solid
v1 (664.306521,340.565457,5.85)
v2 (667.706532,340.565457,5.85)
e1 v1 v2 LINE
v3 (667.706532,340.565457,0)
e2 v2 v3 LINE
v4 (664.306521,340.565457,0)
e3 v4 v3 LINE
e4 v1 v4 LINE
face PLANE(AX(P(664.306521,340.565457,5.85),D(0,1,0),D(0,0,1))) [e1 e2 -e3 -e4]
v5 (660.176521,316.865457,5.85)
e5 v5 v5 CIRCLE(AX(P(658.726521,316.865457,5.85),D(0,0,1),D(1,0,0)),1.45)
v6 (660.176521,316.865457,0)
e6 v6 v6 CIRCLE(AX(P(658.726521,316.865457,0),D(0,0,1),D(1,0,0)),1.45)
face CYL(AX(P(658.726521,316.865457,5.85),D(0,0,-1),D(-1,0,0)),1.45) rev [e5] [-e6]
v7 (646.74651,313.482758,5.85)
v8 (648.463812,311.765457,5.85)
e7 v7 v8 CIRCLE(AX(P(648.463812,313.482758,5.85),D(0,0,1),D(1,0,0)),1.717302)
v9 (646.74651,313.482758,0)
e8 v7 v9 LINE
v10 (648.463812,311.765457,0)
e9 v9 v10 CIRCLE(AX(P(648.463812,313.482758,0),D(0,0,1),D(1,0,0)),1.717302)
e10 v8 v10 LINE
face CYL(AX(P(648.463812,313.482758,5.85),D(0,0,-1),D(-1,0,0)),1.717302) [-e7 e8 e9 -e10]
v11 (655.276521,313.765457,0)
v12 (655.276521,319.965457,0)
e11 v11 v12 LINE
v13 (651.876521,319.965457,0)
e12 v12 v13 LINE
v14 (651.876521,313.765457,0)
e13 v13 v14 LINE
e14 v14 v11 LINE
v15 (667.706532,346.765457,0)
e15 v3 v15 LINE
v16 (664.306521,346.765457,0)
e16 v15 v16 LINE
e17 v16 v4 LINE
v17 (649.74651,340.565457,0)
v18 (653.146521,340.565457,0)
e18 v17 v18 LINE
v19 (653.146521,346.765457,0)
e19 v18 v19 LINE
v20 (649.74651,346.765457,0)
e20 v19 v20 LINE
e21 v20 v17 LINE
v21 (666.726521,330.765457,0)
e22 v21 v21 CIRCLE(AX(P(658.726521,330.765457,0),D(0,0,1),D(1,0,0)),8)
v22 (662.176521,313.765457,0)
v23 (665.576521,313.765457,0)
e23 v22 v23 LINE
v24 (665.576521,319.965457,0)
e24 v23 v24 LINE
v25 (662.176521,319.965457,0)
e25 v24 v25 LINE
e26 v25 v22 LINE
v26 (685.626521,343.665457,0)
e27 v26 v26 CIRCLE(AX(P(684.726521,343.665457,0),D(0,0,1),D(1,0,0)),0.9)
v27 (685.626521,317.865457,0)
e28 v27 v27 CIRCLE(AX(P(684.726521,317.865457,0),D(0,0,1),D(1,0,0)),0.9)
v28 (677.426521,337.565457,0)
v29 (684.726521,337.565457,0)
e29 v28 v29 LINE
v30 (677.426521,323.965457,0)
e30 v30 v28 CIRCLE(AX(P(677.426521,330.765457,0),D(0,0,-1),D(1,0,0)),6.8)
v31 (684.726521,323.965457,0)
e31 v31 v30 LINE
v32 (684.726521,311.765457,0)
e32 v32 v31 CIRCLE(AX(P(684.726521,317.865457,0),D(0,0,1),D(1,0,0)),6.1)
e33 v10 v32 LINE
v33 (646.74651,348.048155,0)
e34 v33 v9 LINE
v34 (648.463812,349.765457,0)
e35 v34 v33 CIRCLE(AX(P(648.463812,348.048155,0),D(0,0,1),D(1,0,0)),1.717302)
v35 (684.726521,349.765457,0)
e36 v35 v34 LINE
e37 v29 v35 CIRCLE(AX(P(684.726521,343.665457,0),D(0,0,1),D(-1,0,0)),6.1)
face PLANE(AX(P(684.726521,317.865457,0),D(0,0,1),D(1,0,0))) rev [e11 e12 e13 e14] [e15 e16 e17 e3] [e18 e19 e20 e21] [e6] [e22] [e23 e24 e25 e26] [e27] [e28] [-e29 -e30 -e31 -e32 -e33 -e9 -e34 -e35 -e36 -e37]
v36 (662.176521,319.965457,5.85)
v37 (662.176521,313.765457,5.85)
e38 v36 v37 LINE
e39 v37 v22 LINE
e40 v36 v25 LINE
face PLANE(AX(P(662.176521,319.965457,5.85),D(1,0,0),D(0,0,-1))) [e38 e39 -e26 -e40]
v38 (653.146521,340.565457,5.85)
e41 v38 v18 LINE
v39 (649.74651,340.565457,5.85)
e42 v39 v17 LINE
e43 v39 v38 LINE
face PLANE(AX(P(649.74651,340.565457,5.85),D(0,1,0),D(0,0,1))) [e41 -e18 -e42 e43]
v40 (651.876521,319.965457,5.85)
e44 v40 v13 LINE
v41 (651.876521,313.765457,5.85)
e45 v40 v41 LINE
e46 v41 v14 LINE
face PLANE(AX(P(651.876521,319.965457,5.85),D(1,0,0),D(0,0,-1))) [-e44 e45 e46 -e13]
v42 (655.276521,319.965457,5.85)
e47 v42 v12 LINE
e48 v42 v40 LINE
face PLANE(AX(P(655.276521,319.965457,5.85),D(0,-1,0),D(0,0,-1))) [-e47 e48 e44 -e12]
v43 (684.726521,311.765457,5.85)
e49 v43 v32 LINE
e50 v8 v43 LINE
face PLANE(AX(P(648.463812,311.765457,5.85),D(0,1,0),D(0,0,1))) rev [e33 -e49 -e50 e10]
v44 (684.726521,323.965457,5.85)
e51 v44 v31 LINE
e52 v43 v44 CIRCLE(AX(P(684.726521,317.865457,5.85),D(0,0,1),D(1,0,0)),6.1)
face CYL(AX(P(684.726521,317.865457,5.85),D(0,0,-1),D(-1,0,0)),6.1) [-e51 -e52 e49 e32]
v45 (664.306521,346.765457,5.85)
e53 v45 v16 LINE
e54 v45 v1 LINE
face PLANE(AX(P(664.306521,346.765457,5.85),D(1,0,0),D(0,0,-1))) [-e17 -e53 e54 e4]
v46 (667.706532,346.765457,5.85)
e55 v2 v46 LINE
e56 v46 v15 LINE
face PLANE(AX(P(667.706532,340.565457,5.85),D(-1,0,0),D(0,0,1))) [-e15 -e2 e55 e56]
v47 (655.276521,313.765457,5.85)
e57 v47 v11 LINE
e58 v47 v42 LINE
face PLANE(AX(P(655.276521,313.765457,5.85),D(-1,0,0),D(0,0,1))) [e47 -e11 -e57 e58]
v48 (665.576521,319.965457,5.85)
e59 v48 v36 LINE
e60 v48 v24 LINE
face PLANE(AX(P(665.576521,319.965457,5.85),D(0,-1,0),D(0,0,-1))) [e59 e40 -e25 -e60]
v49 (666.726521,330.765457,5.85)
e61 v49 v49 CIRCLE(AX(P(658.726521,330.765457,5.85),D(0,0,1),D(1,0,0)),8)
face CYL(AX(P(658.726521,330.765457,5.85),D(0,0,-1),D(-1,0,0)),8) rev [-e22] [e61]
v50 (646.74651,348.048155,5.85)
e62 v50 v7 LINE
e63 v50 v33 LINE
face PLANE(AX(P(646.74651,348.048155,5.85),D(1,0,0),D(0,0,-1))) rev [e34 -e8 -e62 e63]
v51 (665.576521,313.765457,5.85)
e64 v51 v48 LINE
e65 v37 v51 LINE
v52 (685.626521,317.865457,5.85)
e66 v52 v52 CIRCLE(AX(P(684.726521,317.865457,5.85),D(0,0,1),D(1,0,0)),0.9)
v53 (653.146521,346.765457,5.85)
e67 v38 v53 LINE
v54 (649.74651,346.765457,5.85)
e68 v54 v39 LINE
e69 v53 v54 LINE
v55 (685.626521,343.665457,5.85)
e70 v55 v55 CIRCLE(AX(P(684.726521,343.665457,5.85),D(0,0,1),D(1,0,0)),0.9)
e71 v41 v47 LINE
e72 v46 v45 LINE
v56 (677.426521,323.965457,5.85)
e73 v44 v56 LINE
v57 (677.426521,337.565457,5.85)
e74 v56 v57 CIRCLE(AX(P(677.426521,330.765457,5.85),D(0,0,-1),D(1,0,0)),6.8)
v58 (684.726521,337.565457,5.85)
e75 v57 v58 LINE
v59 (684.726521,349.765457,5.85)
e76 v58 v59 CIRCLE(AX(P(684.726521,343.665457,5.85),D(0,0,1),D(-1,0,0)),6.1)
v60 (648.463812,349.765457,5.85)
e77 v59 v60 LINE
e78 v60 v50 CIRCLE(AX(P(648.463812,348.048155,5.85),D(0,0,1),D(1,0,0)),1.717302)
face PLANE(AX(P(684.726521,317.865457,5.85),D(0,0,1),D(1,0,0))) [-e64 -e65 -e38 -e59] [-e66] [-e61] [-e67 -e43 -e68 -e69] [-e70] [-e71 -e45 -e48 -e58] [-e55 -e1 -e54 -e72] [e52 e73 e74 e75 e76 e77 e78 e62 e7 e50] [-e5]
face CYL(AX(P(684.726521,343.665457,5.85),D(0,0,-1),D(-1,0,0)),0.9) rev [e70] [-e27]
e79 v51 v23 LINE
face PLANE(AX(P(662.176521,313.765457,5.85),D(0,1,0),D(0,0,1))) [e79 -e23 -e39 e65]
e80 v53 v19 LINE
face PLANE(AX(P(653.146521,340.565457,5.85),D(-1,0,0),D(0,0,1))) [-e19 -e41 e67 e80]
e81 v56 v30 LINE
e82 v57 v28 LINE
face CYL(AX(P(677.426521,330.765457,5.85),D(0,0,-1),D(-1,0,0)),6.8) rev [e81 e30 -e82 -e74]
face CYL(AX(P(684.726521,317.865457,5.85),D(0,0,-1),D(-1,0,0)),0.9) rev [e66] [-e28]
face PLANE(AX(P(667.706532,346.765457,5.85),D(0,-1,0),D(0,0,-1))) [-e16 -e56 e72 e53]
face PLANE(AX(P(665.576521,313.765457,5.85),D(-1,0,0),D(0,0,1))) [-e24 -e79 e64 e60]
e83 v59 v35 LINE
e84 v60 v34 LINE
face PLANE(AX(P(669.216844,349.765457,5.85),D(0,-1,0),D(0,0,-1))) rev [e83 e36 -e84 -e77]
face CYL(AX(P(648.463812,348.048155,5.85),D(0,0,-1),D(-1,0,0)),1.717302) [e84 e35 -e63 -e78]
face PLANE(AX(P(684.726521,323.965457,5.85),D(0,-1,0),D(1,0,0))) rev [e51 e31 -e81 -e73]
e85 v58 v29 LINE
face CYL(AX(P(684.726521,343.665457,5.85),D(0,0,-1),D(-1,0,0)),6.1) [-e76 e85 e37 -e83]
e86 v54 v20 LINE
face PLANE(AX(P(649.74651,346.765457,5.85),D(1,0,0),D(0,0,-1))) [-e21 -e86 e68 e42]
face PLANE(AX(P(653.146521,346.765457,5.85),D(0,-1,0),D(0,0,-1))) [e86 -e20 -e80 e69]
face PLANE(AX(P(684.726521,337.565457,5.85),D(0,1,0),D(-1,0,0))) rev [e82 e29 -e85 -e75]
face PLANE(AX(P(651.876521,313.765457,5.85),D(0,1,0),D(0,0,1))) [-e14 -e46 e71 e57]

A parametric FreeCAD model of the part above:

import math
import FreeCAD as App
import Part
import Sketcher

V = App.Vector
Q = App.Units.Quantity

doc = App.newDocument("Part")
body = doc.addObject("PartDesign::Body", "Body")

# Sketch on XY plane
sketch1 = body.newObject("Sketcher::SketchObject", "Sketch")
sketch1.AttachmentSupport = (doc.getObject("XY_Plane"), [""])
sketch1.MapMode = "FlatFace"
sketch1.addGeometry([
    Part.ArcOfCircle(Part.Circle(V(648.463812, 348.048155, 0), V(0, 0, 1), 1.717302), math.radians(90), math.radians(180)),  # 0
    Part.LineSegment(V(646.74651, 348.048155, 0), V(646.74651, 313.482758, 0)),  # 1
    Part.ArcOfCircle(Part.Circle(V(648.463812, 313.482758, 0), V(0, 0, 1), 1.717302), math.radians(-180), math.radians(-90)),  # 2
    Part.LineSegment(V(648.463812, 311.765457, 0), V(684.726521, 311.765457, 0)),  # 3
    Part.ArcOfCircle(Part.Circle(V(684.726521, 317.865457, 0), V(0, 0, 1), 6.1), math.radians(-90), math.radians(90)),  # 4
    Part.LineSegment(V(684.726521, 323.965457, 0), V(677.426521, 323.965457, 0)),  # 5
    Part.ArcOfCircle(Part.Circle(V(677.426521, 330.765457, 0), V(0, 0, 1), 6.8), math.radians(90), math.radians(270)),  # 6
    Part.LineSegment(V(677.426521, 337.565457, 0), V(684.726521, 337.565457, 0)),  # 7
    Part.ArcOfCircle(Part.Circle(V(684.726521, 343.665457, 0), V(0, 0, 1), 6.1), math.radians(-90), math.radians(90)),  # 8
    Part.LineSegment(V(684.726521, 349.765457, 0), V(648.463812, 349.765457, 0)),  # 9
    Part.LineSegment(V(655.276521, 313.765457, 0), V(651.876521, 313.765457, 0)),  # 10
    Part.LineSegment(V(651.876521, 313.765457, 0), V(651.876521, 319.965457, 0)),  # 11
    Part.LineSegment(V(651.876521, 319.965457, 0), V(655.276521, 319.965457, 0)),  # 12
    Part.LineSegment(V(655.276521, 319.965457, 0), V(655.276521, 313.765457, 0)),  # 13
    Part.Circle(V(658.726521, 316.865457, 0), V(0, 0, 1), 1.45),  # 14
    Part.LineSegment(V(665.576521, 313.765457, 0), V(662.176521, 313.765457, 0)),  # 15
    Part.LineSegment(V(662.176521, 313.765457, 0), V(662.176521, 319.965457, 0)),  # 16
    Part.LineSegment(V(662.176521, 319.965457, 0), V(665.576521, 319.965457, 0)),  # 17
    Part.LineSegment(V(665.576521, 319.965457, 0), V(665.576521, 313.765457, 0)),  # 18
    Part.Circle(V(684.726521, 317.865457, 0), V(0, 0, 1), 0.9),  # 19
    Part.Circle(V(658.726521, 330.765457, 0), V(0, 0, 1), 8),  # 20
    Part.LineSegment(V(653.146521, 340.565457, 0), V(649.74651, 340.565457, 0)),  # 21
    Part.LineSegment(V(649.74651, 340.565457, 0), V(649.74651, 346.765457, 0)),  # 22
    Part.LineSegment(V(649.74651, 346.765457, 0), V(653.146521, 346.765457, 0)),  # 23
    Part.LineSegment(V(653.146521, 346.765457, 0), V(653.146521, 340.565457, 0)),  # 24
    Part.LineSegment(V(667.706532, 340.565457, 0), V(664.306521, 340.565457, 0)),  # 25
    Part.LineSegment(V(664.306521, 340.565457, 0), V(664.306521, 346.765457, 0)),  # 26
    Part.LineSegment(V(664.306521, 346.765457, 0), V(667.706532, 346.765457, 0)),  # 27
    Part.LineSegment(V(667.706532, 346.765457, 0), V(667.706532, 340.565457, 0)),  # 28
    Part.Circle(V(684.726521, 343.665457, 0), V(0, 0, 1), 0.9),  # 29
], False)
sketch1.addConstraint([
    Sketcher.Constraint("Tangent", 0, 2, 1, 1),
    Sketcher.Constraint("Tangent", 1, 2, 2, 1),
    Sketcher.Constraint("Tangent", 2, 2, 3, 1),
    Sketcher.Constraint("Tangent", 3, 2, 4, 1),
    Sketcher.Constraint("Tangent", 4, 2, 5, 1),
    Sketcher.Constraint("Tangent", 5, 2, 6, 2),
    Sketcher.Constraint("Tangent", 6, 1, 7, 1),
    Sketcher.Constraint("Tangent", 7, 2, 8, 1),
    Sketcher.Constraint("Tangent", 8, 2, 9, 1),
    Sketcher.Constraint("Tangent", 9, 2, 0, 1),
    Sketcher.Constraint("Coincident", 10, 2, 11, 1),
    Sketcher.Constraint("Coincident", 11, 2, 12, 1),
    Sketcher.Constraint("Coincident", 12, 2, 13, 1),
    Sketcher.Constraint("Coincident", 13, 2, 10, 1),
    Sketcher.Constraint("Coincident", 15, 2, 16, 1),
    Sketcher.Constraint("Coincident", 16, 2, 17, 1),
    Sketcher.Constraint("Coincident", 17, 2, 18, 1),
    Sketcher.Constraint("Coincident", 18, 2, 15, 1),
    Sketcher.Constraint("Coincident", 21, 2, 22, 1),
    Sketcher.Constraint("Coincident", 22, 2, 23, 1),
    Sketcher.Constraint("Coincident", 23, 2, 24, 1),
    Sketcher.Constraint("Coincident", 24, 2, 21, 1),
    Sketcher.Constraint("Coincident", 25, 2, 26, 1),
    Sketcher.Constraint("Coincident", 26, 2, 27, 1),
    Sketcher.Constraint("Coincident", 27, 2, 28, 1),
    Sketcher.Constraint("Coincident", 28, 2, 25, 1),
    Sketcher.Constraint("Vertical", 1),
    Sketcher.Constraint("Horizontal", 3),
    Sketcher.Constraint("Horizontal", 5),
    Sketcher.Constraint("Horizontal", 7),
    Sketcher.Constraint("Horizontal", 9),
    Sketcher.Constraint("Horizontal", 10),
    Sketcher.Constraint("Vertical", 11),
    Sketcher.Constraint("Horizontal", 12),
    Sketcher.Constraint("Vertical", 13),
    Sketcher.Constraint("Horizontal", 15),
    Sketcher.Constraint("Vertical", 16),
    Sketcher.Constraint("Horizontal", 17),
    Sketcher.Constraint("Vertical", 18),
    Sketcher.Constraint("Horizontal", 21),
    Sketcher.Constraint("Vertical", 22),
    Sketcher.Constraint("Horizontal", 23),
    Sketcher.Constraint("Vertical", 24),
    Sketcher.Constraint("Horizontal", 25),
    Sketcher.Constraint("Vertical", 26),
    Sketcher.Constraint("Horizontal", 27),
    Sketcher.Constraint("Vertical", 28),
    Sketcher.Constraint("Coincident", 19, 3, 4, 3),
    Sketcher.Constraint("Coincident", 29, 3, 8, 3),
    Sketcher.Constraint("Equal", 0, 2),
    Sketcher.Constraint("Equal", 4, 8),
    Sketcher.Constraint("Equal", 19, 29),
    Sketcher.Constraint("Horizontal", 6, 3, 20, 3),
    Sketcher.Constraint("Horizontal", 13, 2, 15, 2),
    Sketcher.Constraint("Horizontal", 12, 2, 16, 2),
    Sketcher.Constraint("Horizontal", 24, 2, 25, 2),
    Sketcher.Constraint("Horizontal", 23, 2, 26, 2),
    Sketcher.Constraint("Vertical", 4, 3, 8, 3),
    Sketcher.Constraint("Vertical", 14, 3, 20, 3),
    Sketcher.Constraint("Equal", 12, 15),
    Sketcher.Constraint("Equal", 23, 25),
    Sketcher.Constraint("Equal", 18, 22),
    Sketcher.Constraint("Diameter", 20, Q("16 mm")),
    Sketcher.Constraint("Diameter", 14, Q("2.9 mm")),
    Sketcher.Constraint("Diameter", 19, Q("1.8 mm")),
    Sketcher.Constraint("Radius", 4, Q("6.1 mm")),
    Sketcher.Constraint("Radius", 6, Q("6.8 mm")),
    Sketcher.Constraint("DistanceX", 5, 2, 5, 1, Q("7.3 mm")),
    Sketcher.Constraint("DistanceX", 10, 2, 10, 1, Q("3.4 mm")),
    Sketcher.Constraint("DistanceY", 11, 1, 11, 2, Q("6.2 mm")),
    Sketcher.Constraint("DistanceX", 14, 3, 4, 3, Q("26 mm")),
    Sketcher.Constraint("DistanceY", 14, 3, 4, 3, Q("1 mm")),
    Sketcher.Constraint("DistanceY", 2, 2, 10, 2, Q("2 mm")),
    Sketcher.Constraint("DistanceX", 0, 2, 21, 2, Q("3 mm")),
    Sketcher.Constraint("DistanceY", 22, 2, 9, 2, Q("3 mm")),
    Sketcher.Constraint("Radius", 0, Q("1.717302 mm")),
    Sketcher.Constraint("DistanceX", 13, 2, 15, 2, Q("6.9 mm")),
    Sketcher.Constraint("DistanceX", 10, 2, 14, 3, Q("6.85 mm")),
    Sketcher.Constraint("DistanceX", 24, 2, 25, 2, Q("11.16 mm")),
    Sketcher.Constraint("DistanceX", 20, 3, 25, 2, Q("5.58 mm")),
    Sketcher.Constraint("DistanceX", 3, 1, 3, 2, Q("36.262709 mm")),
    Sketcher.Constraint("DistanceX", -1, 1, 0, 3, Q("648.463812 mm")),
    Sketcher.Constraint("DistanceY", -1, 1, 2, 3, Q("313.482758 mm")),
])
pad1 = body.newObject("PartDesign::Pad", "Pad")
pad1.Profile = sketch1
pad1.Length = 5.85

doc.recompute()
